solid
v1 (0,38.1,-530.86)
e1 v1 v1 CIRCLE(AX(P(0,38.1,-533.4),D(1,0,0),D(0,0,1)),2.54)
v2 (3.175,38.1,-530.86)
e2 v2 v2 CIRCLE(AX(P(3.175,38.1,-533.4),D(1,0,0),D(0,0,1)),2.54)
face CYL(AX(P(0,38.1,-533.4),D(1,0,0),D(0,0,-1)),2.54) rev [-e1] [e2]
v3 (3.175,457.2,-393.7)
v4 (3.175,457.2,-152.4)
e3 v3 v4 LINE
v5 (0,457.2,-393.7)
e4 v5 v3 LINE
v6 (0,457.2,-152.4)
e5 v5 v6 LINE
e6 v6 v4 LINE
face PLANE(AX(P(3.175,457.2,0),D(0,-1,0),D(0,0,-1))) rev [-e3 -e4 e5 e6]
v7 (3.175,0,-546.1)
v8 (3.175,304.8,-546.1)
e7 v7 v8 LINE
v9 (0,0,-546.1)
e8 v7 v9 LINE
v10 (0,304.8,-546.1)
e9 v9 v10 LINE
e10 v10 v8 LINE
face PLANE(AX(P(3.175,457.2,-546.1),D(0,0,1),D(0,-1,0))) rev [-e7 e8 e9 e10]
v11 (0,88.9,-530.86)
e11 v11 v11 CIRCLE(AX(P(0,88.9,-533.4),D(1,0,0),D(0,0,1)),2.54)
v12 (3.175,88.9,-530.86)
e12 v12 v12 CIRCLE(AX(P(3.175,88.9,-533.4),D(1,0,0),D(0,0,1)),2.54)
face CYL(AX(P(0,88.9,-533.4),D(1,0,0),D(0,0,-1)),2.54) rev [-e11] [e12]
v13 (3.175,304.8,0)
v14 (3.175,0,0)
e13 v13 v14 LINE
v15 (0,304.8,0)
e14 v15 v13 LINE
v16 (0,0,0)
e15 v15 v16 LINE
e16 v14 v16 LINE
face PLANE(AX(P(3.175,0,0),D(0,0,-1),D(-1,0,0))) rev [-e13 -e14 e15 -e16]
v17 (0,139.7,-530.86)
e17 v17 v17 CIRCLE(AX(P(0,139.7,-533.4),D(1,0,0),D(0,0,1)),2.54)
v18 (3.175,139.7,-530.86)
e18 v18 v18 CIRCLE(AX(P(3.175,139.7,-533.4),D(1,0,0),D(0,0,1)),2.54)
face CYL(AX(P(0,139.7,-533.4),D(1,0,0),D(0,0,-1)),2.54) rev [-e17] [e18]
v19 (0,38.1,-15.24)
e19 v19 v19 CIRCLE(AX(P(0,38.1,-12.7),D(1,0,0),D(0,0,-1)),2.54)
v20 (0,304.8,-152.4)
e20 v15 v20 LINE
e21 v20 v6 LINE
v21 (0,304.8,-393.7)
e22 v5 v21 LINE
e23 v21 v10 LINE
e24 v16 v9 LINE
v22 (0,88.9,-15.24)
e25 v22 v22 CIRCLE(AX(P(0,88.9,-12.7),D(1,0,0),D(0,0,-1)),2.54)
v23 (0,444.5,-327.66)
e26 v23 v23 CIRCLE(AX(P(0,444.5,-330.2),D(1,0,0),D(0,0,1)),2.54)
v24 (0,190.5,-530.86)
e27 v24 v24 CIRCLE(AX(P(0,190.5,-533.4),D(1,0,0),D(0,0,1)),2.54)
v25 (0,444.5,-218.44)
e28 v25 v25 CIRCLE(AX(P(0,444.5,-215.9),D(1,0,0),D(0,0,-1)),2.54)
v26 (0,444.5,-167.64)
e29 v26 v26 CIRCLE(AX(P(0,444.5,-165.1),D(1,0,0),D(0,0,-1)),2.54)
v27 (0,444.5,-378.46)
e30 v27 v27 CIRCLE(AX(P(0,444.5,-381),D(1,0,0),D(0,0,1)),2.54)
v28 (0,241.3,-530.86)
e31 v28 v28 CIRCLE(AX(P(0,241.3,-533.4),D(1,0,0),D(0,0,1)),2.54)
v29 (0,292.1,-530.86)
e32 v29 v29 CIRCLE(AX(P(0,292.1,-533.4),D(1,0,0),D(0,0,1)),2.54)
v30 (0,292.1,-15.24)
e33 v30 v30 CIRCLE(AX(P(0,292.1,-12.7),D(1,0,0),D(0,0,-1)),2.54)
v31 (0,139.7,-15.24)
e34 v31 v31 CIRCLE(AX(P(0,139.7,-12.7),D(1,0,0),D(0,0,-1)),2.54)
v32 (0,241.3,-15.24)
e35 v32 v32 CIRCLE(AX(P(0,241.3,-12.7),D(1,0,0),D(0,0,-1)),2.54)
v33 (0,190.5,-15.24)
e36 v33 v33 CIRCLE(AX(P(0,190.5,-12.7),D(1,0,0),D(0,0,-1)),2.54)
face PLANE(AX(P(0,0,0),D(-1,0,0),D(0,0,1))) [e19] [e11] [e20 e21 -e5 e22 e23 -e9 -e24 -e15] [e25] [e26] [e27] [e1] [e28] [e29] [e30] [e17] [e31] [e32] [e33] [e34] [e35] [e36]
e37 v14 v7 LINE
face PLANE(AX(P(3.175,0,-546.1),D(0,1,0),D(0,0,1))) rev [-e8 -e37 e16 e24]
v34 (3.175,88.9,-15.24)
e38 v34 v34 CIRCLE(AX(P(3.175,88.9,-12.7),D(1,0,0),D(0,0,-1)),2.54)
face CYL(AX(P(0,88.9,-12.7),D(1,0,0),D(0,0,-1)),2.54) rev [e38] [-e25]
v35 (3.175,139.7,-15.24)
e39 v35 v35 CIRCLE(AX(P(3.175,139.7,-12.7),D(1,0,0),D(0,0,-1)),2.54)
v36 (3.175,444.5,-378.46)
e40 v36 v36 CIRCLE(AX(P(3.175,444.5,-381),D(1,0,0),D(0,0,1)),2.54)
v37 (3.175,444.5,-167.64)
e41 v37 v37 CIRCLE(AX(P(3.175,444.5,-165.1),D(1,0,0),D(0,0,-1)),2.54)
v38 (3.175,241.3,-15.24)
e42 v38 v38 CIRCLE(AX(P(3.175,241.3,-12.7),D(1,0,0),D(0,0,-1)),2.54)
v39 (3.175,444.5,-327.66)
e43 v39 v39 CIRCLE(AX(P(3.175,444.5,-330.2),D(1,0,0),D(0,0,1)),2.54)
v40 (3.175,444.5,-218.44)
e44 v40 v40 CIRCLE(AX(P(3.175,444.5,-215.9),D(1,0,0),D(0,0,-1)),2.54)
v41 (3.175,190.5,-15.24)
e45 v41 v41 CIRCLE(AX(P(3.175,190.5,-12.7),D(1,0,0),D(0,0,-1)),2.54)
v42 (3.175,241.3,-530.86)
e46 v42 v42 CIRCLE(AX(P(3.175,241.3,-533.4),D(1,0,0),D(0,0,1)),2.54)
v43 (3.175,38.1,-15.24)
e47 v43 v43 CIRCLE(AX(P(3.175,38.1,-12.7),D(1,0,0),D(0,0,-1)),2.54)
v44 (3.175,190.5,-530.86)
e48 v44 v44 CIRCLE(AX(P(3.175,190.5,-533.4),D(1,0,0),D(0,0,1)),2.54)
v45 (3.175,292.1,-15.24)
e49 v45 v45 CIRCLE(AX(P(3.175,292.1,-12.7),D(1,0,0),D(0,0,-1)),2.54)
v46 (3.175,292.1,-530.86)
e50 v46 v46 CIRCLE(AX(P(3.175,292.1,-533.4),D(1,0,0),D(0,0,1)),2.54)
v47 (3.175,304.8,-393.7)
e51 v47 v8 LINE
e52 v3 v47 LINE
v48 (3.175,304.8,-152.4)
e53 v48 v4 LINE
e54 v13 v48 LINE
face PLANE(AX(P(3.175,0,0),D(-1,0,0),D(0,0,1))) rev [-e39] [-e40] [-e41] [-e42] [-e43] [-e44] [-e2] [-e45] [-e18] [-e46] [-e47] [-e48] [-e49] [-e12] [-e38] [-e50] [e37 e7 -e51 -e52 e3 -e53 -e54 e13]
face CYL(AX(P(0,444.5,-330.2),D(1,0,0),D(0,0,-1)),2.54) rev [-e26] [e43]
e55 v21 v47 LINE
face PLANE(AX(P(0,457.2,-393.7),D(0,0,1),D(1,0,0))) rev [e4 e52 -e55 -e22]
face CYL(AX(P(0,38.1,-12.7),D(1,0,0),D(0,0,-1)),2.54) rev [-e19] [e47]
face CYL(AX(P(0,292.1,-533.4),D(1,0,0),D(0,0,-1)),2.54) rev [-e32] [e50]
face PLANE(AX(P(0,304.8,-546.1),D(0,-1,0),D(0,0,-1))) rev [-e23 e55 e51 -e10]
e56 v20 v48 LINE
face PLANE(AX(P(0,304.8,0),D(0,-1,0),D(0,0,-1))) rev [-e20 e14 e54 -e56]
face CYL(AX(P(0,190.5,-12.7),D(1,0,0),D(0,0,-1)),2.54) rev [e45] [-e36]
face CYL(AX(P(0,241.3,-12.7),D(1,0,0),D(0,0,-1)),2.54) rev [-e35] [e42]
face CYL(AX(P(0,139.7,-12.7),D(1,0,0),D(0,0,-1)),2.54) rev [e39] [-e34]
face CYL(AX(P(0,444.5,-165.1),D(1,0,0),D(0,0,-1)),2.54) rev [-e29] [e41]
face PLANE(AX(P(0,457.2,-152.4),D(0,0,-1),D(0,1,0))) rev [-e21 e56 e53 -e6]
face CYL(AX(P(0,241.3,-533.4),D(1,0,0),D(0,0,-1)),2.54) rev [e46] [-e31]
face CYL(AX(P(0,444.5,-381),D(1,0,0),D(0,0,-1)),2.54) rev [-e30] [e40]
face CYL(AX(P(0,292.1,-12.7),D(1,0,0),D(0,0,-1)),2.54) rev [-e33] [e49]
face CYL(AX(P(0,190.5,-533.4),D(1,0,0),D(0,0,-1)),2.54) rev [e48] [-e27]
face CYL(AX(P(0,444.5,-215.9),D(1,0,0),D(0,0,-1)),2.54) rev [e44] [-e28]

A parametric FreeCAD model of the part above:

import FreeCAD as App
import Part
import Sketcher
from FreeCAD import Vector
Q = App.Units.Quantity

doc = App.newDocument("Part")
body = doc.addObject("PartDesign::Body", "Body")

# Sketch on YZ plane
sketch1 = doc.addObject("Sketcher::SketchObject", "Sketch")
body.addObject(sketch1)
sketch1.AttachmentSupport = (doc.YZ_Plane, [""])
sketch1.MapMode = "FlatFace"
sketch1.addGeometry(Part.LineSegment(Vector(457.2, 0, 0), Vector(0, 0, 0)), False)
sketch1.addGeometry(Part.LineSegment(Vector(0, 0, 0), Vector(0, -546.1, 0)), False)
sketch1.addGeometry(Part.LineSegment(Vector(0, -546.1, 0), Vector(457.2, -546.1, 0)), False)
sketch1.addGeometry(Part.LineSegment(Vector(457.2, -546.1, 0), Vector(457.2, 0, 0)), False)
sketch1.addConstraint(Sketcher.Constraint("Coincident", 0, 2, 1, 1))
sketch1.addConstraint(Sketcher.Constraint("Coincident", 1, 2, 2, 1))
sketch1.addConstraint(Sketcher.Constraint("Coincident", 2, 2, 3, 1))
sketch1.addConstraint(Sketcher.Constraint("Coincident", 3, 2, 0, 1))
sketch1.addConstraint(Sketcher.Constraint("Horizontal", 0))
sketch1.addConstraint(Sketcher.Constraint("Vertical", 1))
sketch1.addConstraint(Sketcher.Constraint("Horizontal", 2))
sketch1.addConstraint(Sketcher.Constraint("Vertical", 3))
sketch1.addConstraint(Sketcher.Constraint("Coincident", 0, 2, -1, 1))
sketch1.addConstraint(Sketcher.Constraint("DistanceX", 0, 2, 0, 1, Q("18 in")))
sketch1.addConstraint(Sketcher.Constraint("DistanceY", 1, 2, 1, 1, Q("21.5 in")))
pad1 = doc.addObject("PartDesign::Pad", "Pad")
body.addObject(pad1)
pad1.Profile = sketch1
pad1.Length = Q("0.125 in")

# Sketch on YZ plane
sketch2 = doc.addObject("Sketcher::SketchObject", "Sketch001")
body.addObject(sketch2)
sketch2.AttachmentSupport = (doc.YZ_Plane, [""])
sketch2.MapMode = "FlatFace"
sketch2.AttachmentOffset = App.Placement(Vector(0, 0, 0.125 * 25.4), App.Rotation())
sketch2.addGeometry(Part.Circle(Vector(444.5, -12.7, 0), Vector(0, 0, 1), 2.54), False)
sketch2.addGeometry(Part.Circle(Vector(444.5, -63.5, 0), Vector(0, 0, 1), 2.54), False)
sketch2.addGeometry(Part.Circle(Vector(444.5, -114.3, 0), Vector(0, 0, 1), 2.54), False)
sketch2.addGeometry(Part.Circle(Vector(444.5, -165.1, 0), Vector(0, 0, 1), 2.54), False)
sketch2.addGeometry(Part.Circle(Vector(444.5, -215.9, 0), Vector(0, 0, 1), 2.54), False)
sketch2.addGeometry(Part.Circle(Vector(393.7, -12.7, 0), Vector(0, 0, 1), 2.54), False)
sketch2.addGeometry(Part.Circle(Vector(342.9, -12.7, 0), Vector(0, 0, 1), 2.54), False)
sketch2.addGeometry(Part.Circle(Vector(292.1, -12.7, 0), Vector(0, 0, 1), 2.54), False)
sketch2.addGeometry(Part.Circle(Vector(241.3, -12.7, 0), Vector(0, 0, 1), 2.54), False)
sketch2.addGeometry(Part.Circle(Vector(190.5, -12.7, 0), Vector(0, 0, 1), 2.54), False)
sketch2.addGeometry(Part.Circle(Vector(139.7, -12.7, 0), Vector(0, 0, 1), 2.54), False)
sketch2.addGeometry(Part.Circle(Vector(88.9, -12.7, 0), Vector(0, 0, 1), 2.54), False)
sketch2.addGeometry(Part.Circle(Vector(38.1, -12.7, 0), Vector(0, 0, 1), 2.54), False)
sketch2.addGeometry(Part.Circle(Vector(38.1, -533.4, 0), Vector(0, 0, 1), 2.54), False)
sketch2.addGeometry(Part.Circle(Vector(88.9, -533.4, 0), Vector(0, 0, 1), 2.54), False)
sketch2.addGeometry(Part.Circle(Vector(139.7, -533.4, 0), Vector(0, 0, 1), 2.54), False)
sketch2.addGeometry(Part.Circle(Vector(190.5, -533.4, 0), Vector(0, 0, 1), 2.54), False)
sketch2.addGeometry(Part.Circle(Vector(241.3, -533.4, 0), Vector(0, 0, 1), 2.54), False)
sketch2.addGeometry(Part.Circle(Vector(292.1, -533.4, 0), Vector(0, 0, 1), 2.54), False)
sketch2.addGeometry(Part.Circle(Vector(342.9, -533.4, 0), Vector(0, 0, 1), 2.54), False)
sketch2.addGeometry(Part.Circle(Vector(393.7, -533.4, 0), Vector(0, 0, 1), 2.54), False)
sketch2.addGeometry(Part.Circle(Vector(444.5, -330.2, 0), Vector(0, 0, 1), 2.54), False)
sketch2.addGeometry(Part.Circle(Vector(444.5, -381, 0), Vector(0, 0, 1), 2.54), False)
sketch2.addGeometry(Part.Circle(Vector(444.5, -431.8, 0), Vector(0, 0, 1), 2.54), False)
sketch2.addGeometry(Part.Circle(Vector(444.5, -482.6, 0), Vector(0, 0, 1), 2.54), False)
sketch2.addGeometry(Part.Circle(Vector(444.5, -533.4, 0), Vector(0, 0, 1), 2.54), False)
sketch2.addConstraint(Sketcher.Constraint("Equal", 0, 1))
sketch2.addConstraint(Sketcher.Constraint("Equal", 1, 2))
sketch2.addConstraint(Sketcher.Constraint("Equal", 2, 3))
sketch2.addConstraint(Sketcher.Constraint("Equal", 3, 4))
sketch2.addConstraint(Sketcher.Constraint("Equal", 4, 5))
sketch2.addConstraint(Sketcher.Constraint("Equal", 5, 6))
sketch2.addConstraint(Sketcher.Constraint("Equal", 6, 7))
sketch2.addConstraint(Sketcher.Constraint("Equal", 7, 8))
sketch2.addConstraint(Sketcher.Constraint("Equal", 8, 9))
sketch2.addConstraint(Sketcher.Constraint("Equal", 9, 10))
sketch2.addConstraint(Sketcher.Constraint("Equal", 10, 11))
sketch2.addConstraint(Sketcher.Constraint("Equal", 11, 12))
sketch2.addConstraint(Sketcher.Constraint("Equal", 12, 13))
sketch2.addConstraint(Sketcher.Constraint("Equal", 13, 14))
sketch2.addConstraint(Sketcher.Constraint("Equal", 14, 15))
sketch2.addConstraint(Sketcher.Constraint("Equal", 15, 16))
sketch2.addConstraint(Sketcher.Constraint("Equal", 16, 17))
sketch2.addConstraint(Sketcher.Constraint("Equal", 17, 18))
sketch2.addConstraint(Sketcher.Constraint("Equal", 18, 19))
sketch2.addConstraint(Sketcher.Constraint("Equal", 19, 20))
sketch2.addConstraint(Sketcher.Constraint("Equal", 20, 21))
sketch2.addConstraint(Sketcher.Constraint("Equal", 21, 22))
sketch2.addConstraint(Sketcher.Constraint("Equal", 22, 23))
sketch2.addConstraint(Sketcher.Constraint("Equal", 23, 24))
sketch2.addConstraint(Sketcher.Constraint("Equal", 24, 25))
sketch2.addConstraint(Sketcher.Constraint("Horizontal", 0, 3, 5, 3))
sketch2.addConstraint(Sketcher.Constraint("Horizontal", 5, 3, 6, 3))
sketch2.addConstraint(Sketcher.Constraint("Horizontal", 6, 3, 7, 3))
sketch2.addConstraint(Sketcher.Constraint("Horizontal", 7, 3, 8, 3))
sketch2.addConstraint(Sketcher.Constraint("Horizontal", 8, 3, 9, 3))
sketch2.addConstraint(Sketcher.Constraint("Horizontal", 9, 3, 10, 3))
sketch2.addConstraint(Sketcher.Constraint("Horizontal", 10, 3, 11, 3))
sketch2.addConstraint(Sketcher.Constraint("Horizontal", 11, 3, 12, 3))
sketch2.addConstraint(Sketcher.Constraint("Horizontal", 13, 3, 14, 3))
sketch2.addConstraint(Sketcher.Constraint("Horizontal", 14, 3, 15, 3))
sketch2.addConstraint(Sketcher.Constraint("Horizontal", 15, 3, 16, 3))
sketch2.addConstraint(Sketcher.Constraint("Horizontal", 16, 3, 17, 3))
sketch2.addConstraint(Sketcher.Constraint("Horizontal", 17, 3, 18, 3))
sketch2.addConstraint(Sketcher.Constraint("Horizontal", 18, 3, 19, 3))
sketch2.addConstraint(Sketcher.Constraint("Horizontal", 19, 3, 20, 3))
sketch2.addConstraint(Sketcher.Constraint("Horizontal", 20, 3, 25, 3))
sketch2.addConstraint(Sketcher.Constraint("Vertical", 0, 3, 1, 3))
sketch2.addConstraint(Sketcher.Constraint("Vertical", 1, 3, 2, 3))
sketch2.addConstraint(Sketcher.Constraint("Vertical", 2, 3, 3, 3))
sketch2.addConstraint(Sketcher.Constraint("Vertical", 3, 3, 4, 3))
sketch2.addConstraint(Sketcher.Constraint("Vertical", 12, 3, 13, 3))
sketch2.addConstraint(Sketcher.Constraint("Vertical", 11, 3, 14, 3))
sketch2.addConstraint(Sketcher.Constraint("Vertical", 10, 3, 15, 3))
sketch2.addConstraint(Sketcher.Constraint("Vertical", 9, 3, 16, 3))
sketch2.addConstraint(Sketcher.Constraint("Vertical", 8, 3, 17, 3))
sketch2.addConstraint(Sketcher.Constraint("Vertical", 7, 3, 18, 3))
sketch2.addConstraint(Sketcher.Constraint("Vertical", 6, 3, 19, 3))
sketch2.addConstraint(Sketcher.Constraint("Vertical", 5, 3, 20, 3))
sketch2.addConstraint(Sketcher.Constraint("Vertical", 4, 3, 21, 3))
sketch2.addConstraint(Sketcher.Constraint("Vertical", 21, 3, 22, 3))
sketch2.addConstraint(Sketcher.Constraint("Vertical", 22, 3, 23, 3))
sketch2.addConstraint(Sketcher.Constraint("Vertical", 23, 3, 24, 3))
sketch2.addConstraint(Sketcher.Constraint("Vertical", 24, 3, 25, 3))
sketch2.addConstraint(Sketcher.Constraint("Diameter", 0, Q("0.2 in")))
sketch2.addConstraint(Sketcher.Constraint("DistanceY", 13, 3, -1, 1, Q("21 in")))
sketch2.addConstraint(Sketcher.Constraint("DistanceY", 21, 3, -1, 1, Q("13 in")))
sketch2.addConstraint(Sketcher.Constraint("DistanceY", 22, 3, -1, 1, Q("15 in")))
sketch2.addConstraint(Sketcher.Constraint("DistanceY", 23, 3, -1, 1, Q("17 in")))
sketch2.addConstraint(Sketcher.Constraint("DistanceY", 24, 3, -1, 1, Q("19 in")))
sketch2.addConstraint(Sketcher.Constraint("DistanceY", 1, 3, 0, 3, Q("2 in")))
sketch2.addConstraint(Sketcher.Constraint("DistanceY", 2, 3, 1, 3, Q("2 in")))
sketch2.addConstraint(Sketcher.Constraint("DistanceY", 3, 3, 2, 3, Q("2 in")))
sketch2.addConstraint(Sketcher.Constraint("DistanceY", 4, 3, 3, 3, Q("2 in")))
sketch2.addConstraint(Sketcher.Constraint("DistanceX", 5, 3, 0, 3, Q("2 in")))
sketch2.addConstraint(Sketcher.Constraint("DistanceX", 6, 3, 5, 3, Q("2 in")))
sketch2.addConstraint(Sketcher.Constraint("DistanceX", 7, 3, 6, 3, Q("2 in")))
sketch2.addConstraint(Sketcher.Constraint("DistanceX", 8, 3, 7, 3, Q("2 in")))
sketch2.addConstraint(Sketcher.Constraint("DistanceX", 9, 3, 8, 3, Q("2 in")))
sketch2.addConstraint(Sketcher.Constraint("DistanceX", 10, 3, 9, 3, Q("2 in")))
sketch2.addConstraint(Sketcher.Constraint("DistanceX", 11, 3, 10, 3, Q("2 in")))
sketch2.addConstraint(Sketcher.Constraint("DistanceX", 12, 3, 11, 3, Q("2 in")))
sketch2.addConstraint(Sketcher.Constraint("DistanceX", -1, 1, 0, 3, Q("17.5 in")))
sketch2.addConstraint(Sketcher.Constraint("DistanceY", 0, 3, -1, 1, Q("0.5 in")))
pocket1 = doc.addObject("PartDesign::Pocket", "Pocket")
body.addObject(pocket1)
pocket1.Profile = sketch2
pocket1.Type = "ThroughAll"

# Sketch on YZ plane
sketch3 = doc.addObject("Sketcher::SketchObject", "Sketch002")
body.addObject(sketch3)
sketch3.AttachmentSupport = (doc.YZ_Plane, [""])
sketch3.MapMode = "FlatFace"
sketch3.AttachmentOffset = App.Placement(Vector(0, 0, 0.125 * 25.4), App.Rotation())
sketch3.addGeometry(Part.LineSegment(Vector(457.2, 0, 0), Vector(304.8, 0, 0)), False)
sketch3.addGeometry(Part.LineSegment(Vector(304.8, 0, 0), Vector(304.8, -152.4, 0)), False)
sketch3.addGeometry(Part.LineSegment(Vector(304.8, -152.4, 0), Vector(457.2, -152.4, 0)), False)
sketch3.addGeometry(Part.LineSegment(Vector(457.2, -152.4, 0), Vector(457.2, 0, 0)), False)
sketch3.addGeometry(Part.LineSegment(Vector(457.2, -393.7, 0), Vector(304.8, -393.7, 0)), False)
sketch3.addGeometry(Part.LineSegment(Vector(304.8, -393.7, 0), Vector(304.8, -546.1, 0)), False)
sketch3.addGeometry(Part.LineSegment(Vector(304.8, -546.1, 0), Vector(457.2, -546.1, 0)), False)
sketch3.addGeometry(Part.LineSegment(Vector(457.2, -546.1, 0), Vector(457.2, -393.7, 0)), False)
sketch3.addConstraint(Sketcher.Constraint("Coincident", 0, 2, 1, 1))
sketch3.addConstraint(Sketcher.Constraint("Coincident", 1, 2, 2, 1))
sketch3.addConstraint(Sketcher.Constraint("Coincident", 2, 2, 3, 1))
sketch3.addConstraint(Sketcher.Constraint("Coincident", 3, 2, 0, 1))
sketch3.addConstraint(Sketcher.Constraint("Coincident", 4, 2, 5, 1))
sketch3.addConstraint(Sketcher.Constraint("Coincident", 5, 2, 6, 1))
sketch3.addConstraint(Sketcher.Constraint("Coincident", 6, 2, 7, 1))
sketch3.addConstraint(Sketcher.Constraint("Coincident", 7, 2, 4, 1))
sketch3.addConstraint(Sketcher.Constraint("Horizontal", 0))
sketch3.addConstraint(Sketcher.Constraint("Vertical", 1))
sketch3.addConstraint(Sketcher.Constraint("Horizontal", 2))
sketch3.addConstraint(Sketcher.Constraint("Vertical", 3))
sketch3.addConstraint(Sketcher.Constraint("Horizontal", 4))
sketch3.addConstraint(Sketcher.Constraint("Vertical", 5))
sketch3.addConstraint(Sketcher.Constraint("Horizontal", 6))
sketch3.addConstraint(Sketcher.Constraint("Vertical", 7))
sketch3.addConstraint(Sketcher.Constraint("PointOnObject", 0, 2, -1))
sketch3.addConstraint(Sketcher.Constraint("Vertical", 1, 2, 4, 2))
sketch3.addConstraint(Sketcher.Constraint("Vertical", 3, 2, 6, 2))
sketch3.addConstraint(Sketcher.Constraint("Equal", 6, 1))
sketch3.addConstraint(Sketcher.Constraint("Equal", 3, 5))
sketch3.addConstraint(Sketcher.Constraint("DistanceX", 0, 2, 0, 1, Q("6 in")))
sketch3.addConstraint(Sketcher.Constraint("DistanceX", -1, 1, 0, 2, Q("12 in")))
sketch3.addConstraint(Sketcher.Constraint("DistanceY", 4, 2, -1, 1, Q("15.5 in")))
pocket2 = doc.addObject("PartDesign::Pocket", "Pocket001")
body.addObject(pocket2)
pocket2.Profile = sketch3
pocket2.Type = "ThroughAll"

doc.recompute()
